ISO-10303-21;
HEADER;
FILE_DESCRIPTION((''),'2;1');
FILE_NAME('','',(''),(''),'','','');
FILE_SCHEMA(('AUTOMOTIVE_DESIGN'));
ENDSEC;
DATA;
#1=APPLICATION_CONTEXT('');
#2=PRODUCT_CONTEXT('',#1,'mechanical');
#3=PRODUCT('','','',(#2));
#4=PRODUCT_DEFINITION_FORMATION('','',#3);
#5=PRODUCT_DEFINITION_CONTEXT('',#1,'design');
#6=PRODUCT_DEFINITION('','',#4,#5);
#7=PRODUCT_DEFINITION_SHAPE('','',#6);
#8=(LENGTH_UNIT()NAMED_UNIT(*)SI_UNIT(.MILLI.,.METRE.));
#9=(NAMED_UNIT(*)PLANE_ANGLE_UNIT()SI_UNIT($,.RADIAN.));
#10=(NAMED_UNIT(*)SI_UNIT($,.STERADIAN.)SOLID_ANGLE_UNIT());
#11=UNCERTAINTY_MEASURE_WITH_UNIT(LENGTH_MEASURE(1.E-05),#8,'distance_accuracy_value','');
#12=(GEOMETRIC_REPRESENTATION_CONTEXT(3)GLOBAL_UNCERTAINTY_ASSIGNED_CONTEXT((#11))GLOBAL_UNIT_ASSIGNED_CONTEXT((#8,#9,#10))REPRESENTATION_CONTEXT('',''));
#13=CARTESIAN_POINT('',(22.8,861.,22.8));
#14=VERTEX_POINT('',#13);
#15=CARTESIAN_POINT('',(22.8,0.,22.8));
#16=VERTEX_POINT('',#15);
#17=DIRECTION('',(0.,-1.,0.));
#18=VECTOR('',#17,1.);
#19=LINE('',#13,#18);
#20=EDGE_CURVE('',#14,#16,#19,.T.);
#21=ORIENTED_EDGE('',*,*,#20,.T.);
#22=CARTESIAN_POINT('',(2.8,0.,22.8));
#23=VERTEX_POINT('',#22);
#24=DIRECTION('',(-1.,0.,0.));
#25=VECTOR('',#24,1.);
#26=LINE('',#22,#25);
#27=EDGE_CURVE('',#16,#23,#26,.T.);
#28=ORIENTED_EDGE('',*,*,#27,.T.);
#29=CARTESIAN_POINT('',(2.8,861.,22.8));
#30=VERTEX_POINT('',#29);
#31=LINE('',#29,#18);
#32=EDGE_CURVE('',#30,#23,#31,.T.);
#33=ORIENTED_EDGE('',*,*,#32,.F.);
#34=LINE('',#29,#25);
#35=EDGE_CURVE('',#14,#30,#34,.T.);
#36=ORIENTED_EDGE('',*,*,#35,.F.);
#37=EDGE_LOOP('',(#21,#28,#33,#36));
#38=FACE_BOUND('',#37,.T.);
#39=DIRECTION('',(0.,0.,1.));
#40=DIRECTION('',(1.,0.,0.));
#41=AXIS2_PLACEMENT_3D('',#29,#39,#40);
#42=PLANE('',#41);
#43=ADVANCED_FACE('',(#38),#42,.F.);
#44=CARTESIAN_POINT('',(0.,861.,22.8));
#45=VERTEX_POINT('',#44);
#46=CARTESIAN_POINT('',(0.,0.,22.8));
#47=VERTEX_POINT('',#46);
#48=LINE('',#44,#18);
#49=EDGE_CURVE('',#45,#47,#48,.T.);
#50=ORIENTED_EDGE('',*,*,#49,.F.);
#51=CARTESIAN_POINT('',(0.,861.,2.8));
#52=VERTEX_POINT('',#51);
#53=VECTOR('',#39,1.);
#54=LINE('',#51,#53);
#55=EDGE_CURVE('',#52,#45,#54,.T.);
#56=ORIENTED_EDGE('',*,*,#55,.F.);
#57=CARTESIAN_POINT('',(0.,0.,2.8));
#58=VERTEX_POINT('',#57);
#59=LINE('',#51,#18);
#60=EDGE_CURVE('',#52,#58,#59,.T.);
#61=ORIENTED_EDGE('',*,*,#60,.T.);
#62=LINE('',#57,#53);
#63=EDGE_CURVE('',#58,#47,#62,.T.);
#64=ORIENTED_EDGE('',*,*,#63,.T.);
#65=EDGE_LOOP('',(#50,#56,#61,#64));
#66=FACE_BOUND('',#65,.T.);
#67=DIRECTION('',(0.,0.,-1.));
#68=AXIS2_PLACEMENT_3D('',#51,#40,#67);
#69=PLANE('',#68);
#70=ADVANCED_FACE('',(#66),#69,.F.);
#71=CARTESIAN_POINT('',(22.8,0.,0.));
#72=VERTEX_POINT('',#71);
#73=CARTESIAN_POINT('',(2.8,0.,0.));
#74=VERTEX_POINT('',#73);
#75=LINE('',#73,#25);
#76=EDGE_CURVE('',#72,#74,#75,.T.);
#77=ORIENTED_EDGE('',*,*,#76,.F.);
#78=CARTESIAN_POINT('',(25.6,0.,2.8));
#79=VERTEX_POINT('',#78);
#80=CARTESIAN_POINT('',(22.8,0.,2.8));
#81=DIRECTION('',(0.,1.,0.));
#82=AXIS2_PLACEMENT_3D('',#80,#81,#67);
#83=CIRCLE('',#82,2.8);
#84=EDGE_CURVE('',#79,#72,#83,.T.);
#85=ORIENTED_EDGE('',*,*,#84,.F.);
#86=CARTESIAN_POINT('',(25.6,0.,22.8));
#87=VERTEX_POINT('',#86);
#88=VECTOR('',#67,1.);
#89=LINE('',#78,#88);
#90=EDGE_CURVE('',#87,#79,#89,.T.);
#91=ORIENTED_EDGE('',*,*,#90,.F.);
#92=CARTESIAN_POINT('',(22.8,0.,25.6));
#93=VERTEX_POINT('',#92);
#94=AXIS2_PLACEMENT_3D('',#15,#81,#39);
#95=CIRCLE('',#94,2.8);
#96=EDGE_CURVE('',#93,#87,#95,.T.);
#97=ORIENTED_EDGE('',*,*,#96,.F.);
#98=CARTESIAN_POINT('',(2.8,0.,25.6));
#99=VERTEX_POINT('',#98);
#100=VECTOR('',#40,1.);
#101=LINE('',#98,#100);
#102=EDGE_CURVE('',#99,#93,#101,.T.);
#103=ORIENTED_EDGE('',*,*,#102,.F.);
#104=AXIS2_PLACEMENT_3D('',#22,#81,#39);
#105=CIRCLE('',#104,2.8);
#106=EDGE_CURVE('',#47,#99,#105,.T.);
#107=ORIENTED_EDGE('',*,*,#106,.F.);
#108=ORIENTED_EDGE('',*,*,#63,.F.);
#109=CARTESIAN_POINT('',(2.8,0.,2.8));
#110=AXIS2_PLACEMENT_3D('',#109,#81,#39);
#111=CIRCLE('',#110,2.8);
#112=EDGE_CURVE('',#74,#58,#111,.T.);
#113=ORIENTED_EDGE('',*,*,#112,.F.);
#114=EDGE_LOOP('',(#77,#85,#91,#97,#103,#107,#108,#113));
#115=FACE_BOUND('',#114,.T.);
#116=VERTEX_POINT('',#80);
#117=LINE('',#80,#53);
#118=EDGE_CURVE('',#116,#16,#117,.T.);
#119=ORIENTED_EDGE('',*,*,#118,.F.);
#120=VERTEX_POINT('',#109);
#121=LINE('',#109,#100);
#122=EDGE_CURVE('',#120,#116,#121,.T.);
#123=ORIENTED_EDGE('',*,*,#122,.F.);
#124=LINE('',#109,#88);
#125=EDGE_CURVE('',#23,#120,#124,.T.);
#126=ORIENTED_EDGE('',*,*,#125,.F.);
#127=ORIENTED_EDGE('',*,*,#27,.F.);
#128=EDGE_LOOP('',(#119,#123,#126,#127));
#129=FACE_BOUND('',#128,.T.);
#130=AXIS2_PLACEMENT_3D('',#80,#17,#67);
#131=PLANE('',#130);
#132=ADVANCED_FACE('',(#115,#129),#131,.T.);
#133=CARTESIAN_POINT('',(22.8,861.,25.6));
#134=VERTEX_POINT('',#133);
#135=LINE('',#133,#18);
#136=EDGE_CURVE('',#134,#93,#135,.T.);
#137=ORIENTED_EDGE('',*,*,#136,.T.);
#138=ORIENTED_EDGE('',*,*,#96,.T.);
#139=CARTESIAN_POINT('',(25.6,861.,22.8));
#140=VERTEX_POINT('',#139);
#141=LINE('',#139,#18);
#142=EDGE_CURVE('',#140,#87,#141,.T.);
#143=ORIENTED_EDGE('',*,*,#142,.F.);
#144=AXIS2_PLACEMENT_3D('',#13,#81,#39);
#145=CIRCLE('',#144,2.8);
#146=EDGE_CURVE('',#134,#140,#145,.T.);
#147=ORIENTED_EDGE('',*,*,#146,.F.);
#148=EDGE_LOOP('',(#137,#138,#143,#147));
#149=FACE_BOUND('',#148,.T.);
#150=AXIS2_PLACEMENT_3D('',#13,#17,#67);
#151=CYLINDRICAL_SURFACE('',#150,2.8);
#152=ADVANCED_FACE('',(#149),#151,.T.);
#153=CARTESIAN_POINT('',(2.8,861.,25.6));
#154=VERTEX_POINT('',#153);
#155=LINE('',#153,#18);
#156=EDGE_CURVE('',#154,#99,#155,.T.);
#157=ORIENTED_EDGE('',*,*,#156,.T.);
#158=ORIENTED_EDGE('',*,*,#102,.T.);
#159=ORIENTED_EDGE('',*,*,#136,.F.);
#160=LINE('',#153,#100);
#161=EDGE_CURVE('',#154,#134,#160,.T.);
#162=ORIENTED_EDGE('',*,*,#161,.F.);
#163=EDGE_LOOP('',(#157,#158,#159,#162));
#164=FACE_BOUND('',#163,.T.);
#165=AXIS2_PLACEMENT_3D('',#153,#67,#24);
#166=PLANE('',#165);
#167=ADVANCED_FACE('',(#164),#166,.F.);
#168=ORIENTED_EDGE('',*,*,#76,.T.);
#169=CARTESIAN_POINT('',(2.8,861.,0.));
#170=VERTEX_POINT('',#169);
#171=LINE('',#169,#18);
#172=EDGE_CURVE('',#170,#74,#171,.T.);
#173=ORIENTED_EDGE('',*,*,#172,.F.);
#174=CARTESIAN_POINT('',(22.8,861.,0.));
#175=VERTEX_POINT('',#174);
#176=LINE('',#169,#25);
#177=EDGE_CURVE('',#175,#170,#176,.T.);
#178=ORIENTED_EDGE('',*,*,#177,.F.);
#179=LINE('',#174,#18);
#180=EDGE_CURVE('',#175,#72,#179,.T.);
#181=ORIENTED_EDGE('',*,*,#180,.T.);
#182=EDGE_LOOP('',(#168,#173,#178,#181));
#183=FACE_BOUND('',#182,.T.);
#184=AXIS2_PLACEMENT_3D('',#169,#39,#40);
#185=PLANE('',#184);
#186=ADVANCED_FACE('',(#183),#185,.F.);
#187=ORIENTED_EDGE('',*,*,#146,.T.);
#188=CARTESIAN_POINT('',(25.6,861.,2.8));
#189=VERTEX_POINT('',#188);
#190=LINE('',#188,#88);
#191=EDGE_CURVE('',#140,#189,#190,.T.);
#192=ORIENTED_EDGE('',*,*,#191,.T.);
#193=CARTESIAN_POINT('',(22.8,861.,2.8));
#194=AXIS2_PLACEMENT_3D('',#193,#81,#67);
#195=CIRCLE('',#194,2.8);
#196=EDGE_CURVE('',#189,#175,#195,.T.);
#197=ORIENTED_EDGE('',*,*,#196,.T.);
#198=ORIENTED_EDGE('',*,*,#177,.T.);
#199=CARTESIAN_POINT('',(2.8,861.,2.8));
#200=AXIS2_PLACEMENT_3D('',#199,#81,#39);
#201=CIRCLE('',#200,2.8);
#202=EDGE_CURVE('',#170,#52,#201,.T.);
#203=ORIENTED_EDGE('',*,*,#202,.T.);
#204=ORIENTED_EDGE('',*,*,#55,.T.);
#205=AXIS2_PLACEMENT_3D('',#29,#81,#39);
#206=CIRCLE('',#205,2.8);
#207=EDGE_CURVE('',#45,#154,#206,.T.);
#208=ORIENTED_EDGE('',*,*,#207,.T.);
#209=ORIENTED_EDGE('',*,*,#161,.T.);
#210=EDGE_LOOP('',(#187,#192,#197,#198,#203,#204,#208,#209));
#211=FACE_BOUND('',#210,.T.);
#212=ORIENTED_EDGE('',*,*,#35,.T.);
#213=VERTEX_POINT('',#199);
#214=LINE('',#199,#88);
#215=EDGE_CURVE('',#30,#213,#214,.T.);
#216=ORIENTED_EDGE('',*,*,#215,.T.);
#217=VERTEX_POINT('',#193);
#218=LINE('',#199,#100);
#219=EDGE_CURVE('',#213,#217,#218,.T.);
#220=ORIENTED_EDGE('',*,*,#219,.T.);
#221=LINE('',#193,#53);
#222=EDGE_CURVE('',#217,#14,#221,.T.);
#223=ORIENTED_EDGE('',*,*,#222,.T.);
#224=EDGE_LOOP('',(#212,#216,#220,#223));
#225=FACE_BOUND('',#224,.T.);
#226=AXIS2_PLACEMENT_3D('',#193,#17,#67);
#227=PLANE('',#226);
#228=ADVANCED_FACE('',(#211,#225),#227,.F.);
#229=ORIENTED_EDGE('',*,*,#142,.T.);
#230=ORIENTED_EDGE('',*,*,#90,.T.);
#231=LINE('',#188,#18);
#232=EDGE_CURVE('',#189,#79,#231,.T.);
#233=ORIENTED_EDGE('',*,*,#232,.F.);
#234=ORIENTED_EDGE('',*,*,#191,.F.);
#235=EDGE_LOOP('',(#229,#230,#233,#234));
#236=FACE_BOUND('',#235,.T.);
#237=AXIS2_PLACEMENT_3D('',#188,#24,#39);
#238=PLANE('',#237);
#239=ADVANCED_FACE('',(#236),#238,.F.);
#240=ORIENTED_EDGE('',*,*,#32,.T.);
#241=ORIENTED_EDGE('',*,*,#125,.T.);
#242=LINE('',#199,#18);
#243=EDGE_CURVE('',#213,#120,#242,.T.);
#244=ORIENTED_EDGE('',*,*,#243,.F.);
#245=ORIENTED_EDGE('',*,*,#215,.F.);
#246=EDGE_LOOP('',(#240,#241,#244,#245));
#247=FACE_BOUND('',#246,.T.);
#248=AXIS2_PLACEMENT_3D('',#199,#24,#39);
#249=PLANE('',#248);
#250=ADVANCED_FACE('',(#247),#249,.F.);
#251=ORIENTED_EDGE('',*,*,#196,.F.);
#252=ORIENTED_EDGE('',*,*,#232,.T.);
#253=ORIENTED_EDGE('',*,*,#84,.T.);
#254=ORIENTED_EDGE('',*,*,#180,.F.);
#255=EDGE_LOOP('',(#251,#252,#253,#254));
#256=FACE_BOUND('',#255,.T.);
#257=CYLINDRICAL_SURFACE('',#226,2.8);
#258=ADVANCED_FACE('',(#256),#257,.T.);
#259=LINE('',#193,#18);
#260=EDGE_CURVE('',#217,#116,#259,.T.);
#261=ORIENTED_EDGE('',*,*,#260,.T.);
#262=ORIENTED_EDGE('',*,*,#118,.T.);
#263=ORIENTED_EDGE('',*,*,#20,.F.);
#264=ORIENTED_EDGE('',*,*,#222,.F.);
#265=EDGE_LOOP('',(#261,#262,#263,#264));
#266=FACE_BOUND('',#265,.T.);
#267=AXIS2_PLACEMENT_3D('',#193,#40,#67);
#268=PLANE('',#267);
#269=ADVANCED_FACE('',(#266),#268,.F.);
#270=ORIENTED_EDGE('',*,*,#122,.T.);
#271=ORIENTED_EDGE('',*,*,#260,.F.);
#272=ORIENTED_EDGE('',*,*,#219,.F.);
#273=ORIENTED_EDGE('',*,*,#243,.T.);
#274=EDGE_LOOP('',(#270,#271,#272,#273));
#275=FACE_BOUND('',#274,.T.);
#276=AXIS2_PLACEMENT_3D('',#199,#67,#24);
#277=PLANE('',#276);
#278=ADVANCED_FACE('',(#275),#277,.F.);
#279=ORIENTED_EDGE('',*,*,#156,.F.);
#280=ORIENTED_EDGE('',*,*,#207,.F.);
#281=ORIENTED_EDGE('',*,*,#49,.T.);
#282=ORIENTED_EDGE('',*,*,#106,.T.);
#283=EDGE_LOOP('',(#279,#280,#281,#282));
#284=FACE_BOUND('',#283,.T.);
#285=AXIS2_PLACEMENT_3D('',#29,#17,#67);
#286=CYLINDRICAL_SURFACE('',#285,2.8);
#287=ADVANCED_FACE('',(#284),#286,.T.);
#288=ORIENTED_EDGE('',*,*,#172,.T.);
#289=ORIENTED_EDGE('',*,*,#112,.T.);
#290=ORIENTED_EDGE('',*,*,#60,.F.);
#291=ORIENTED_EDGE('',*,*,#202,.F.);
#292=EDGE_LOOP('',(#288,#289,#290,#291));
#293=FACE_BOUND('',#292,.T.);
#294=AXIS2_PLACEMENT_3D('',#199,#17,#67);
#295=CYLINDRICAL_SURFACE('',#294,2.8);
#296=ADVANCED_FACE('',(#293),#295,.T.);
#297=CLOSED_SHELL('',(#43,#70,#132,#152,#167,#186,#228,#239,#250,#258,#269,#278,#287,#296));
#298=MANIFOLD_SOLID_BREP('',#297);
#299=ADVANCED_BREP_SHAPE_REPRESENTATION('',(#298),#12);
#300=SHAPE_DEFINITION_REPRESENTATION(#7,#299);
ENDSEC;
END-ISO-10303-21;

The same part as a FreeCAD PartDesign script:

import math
import FreeCAD as App
import Part
import Sketcher
from FreeCAD import Vector

doc = App.newDocument("Part")
body = doc.addObject("PartDesign::Body", "Body")

# Sketch on XZ plane
sketch1 = doc.addObject("Sketcher::SketchObject", "Sketch")
body.addObject(sketch1)
sketch1.AttachmentSupport = (doc.XZ_Plane, [""])
sketch1.MapMode = "FlatFace"
sketch1.addGeometry([
    Part.LineSegment(Vector(22.8, 0, 0), Vector(2.8, 0, 0)),  # 0
    Part.ArcOfCircle(Part.Circle(Vector(2.8, 2.8, 0), Vector(0, 0, 1), 2.8), math.radians(-180), math.radians(-90)),  # 1
    Part.LineSegment(Vector(0, 2.8, 0), Vector(0, 22.8, 0)),  # 2
    Part.ArcOfCircle(Part.Circle(Vector(2.8, 22.8, 0), Vector(0, 0, 1), 2.8), math.radians(90), math.radians(180)),  # 3
    Part.LineSegment(Vector(2.8, 25.6, 0), Vector(22.8, 25.6, 0)),  # 4
    Part.ArcOfCircle(Part.Circle(Vector(22.8, 22.8, 0), Vector(0, 0, 1), 2.8), math.radians(0), math.radians(90)),  # 5
    Part.LineSegment(Vector(25.6, 22.8, 0), Vector(25.6, 2.8, 0)),  # 6
    Part.ArcOfCircle(Part.Circle(Vector(22.8, 2.8, 0), Vector(0, 0, 1), 2.8), math.radians(-90), math.radians(0)),  # 7
], False)
sketch1.addConstraint([
    Sketcher.Constraint("Tangent", 0, 2, 1, 2),
    Sketcher.Constraint("Tangent", 1, 1, 2, 1),
    Sketcher.Constraint("Tangent", 2, 2, 3, 2),
    Sketcher.Constraint("Tangent", 3, 1, 4, 1),
    Sketcher.Constraint("Tangent", 4, 2, 5, 2),
    Sketcher.Constraint("Tangent", 5, 1, 6, 1),
    Sketcher.Constraint("Tangent", 6, 2, 7, 2),
    Sketcher.Constraint("Tangent", 7, 1, 0, 1),
    Sketcher.Constraint("Horizontal", 0),
    Sketcher.Constraint("Vertical", 2),
    Sketcher.Constraint("Horizontal", 4),
    Sketcher.Constraint("Vertical", 6),
    Sketcher.Constraint("Equal", 1, 3),
    Sketcher.Constraint("Equal", 3, 5),
    Sketcher.Constraint("Equal", 5, 7),
    Sketcher.Constraint("PointOnObject", 0, 2, -1),
    Sketcher.Constraint("PointOnObject", 1, 1, -2),
    Sketcher.Constraint("Equal", 4, 2),
    Sketcher.Constraint("Radius", 1, 2.8),
    Sketcher.Constraint("DistanceX", 0, 2, 0, 1, 20.0),
])
pad1 = doc.addObject("PartDesign::Pad", "Pad")
body.addObject(pad1)
pad1.Profile = sketch1
pad1.Length = 861
pad1.Reversed = True

# Sketch on XZ plane
sketch2 = doc.addObject("Sketcher::SketchObject", "Sketch001")
body.addObject(sketch2)
sketch2.AttachmentSupport = (doc.XZ_Plane, [""])
sketch2.MapMode = "FlatFace"
sketch2.addGeometry([
    Part.LineSegment(Vector(23, 3, 0), Vector(23, 23, 0)),
    Part.LineSegment(Vector(23, 23, 0), Vector(3, 23, 0)),
    Part.LineSegment(Vector(3, 23, 0), Vector(3, 3, 0)),
    Part.LineSegment(Vector(3, 3, 0), Vector(23, 3, 0)),
], False)
sketch2.addConstraint([
    Sketcher.Constraint("Coincident", 0, 2, 1, 1),
    Sketcher.Constraint("Coincident", 1, 2, 2, 1),
    Sketcher.Constraint("Coincident", 2, 2, 3, 1),
    Sketcher.Constraint("Coincident", 3, 2, 0, 1),
    Sketcher.Constraint("Vertical", 0),
    Sketcher.Constraint("Horizontal", 1),
    Sketcher.Constraint("Vertical", 2),
    Sketcher.Constraint("Horizontal", 3),
    Sketcher.Constraint("Equal", 3, 0),
    Sketcher.Constraint("DistanceX", 1, 2, 1, 1, 20.0),
    Sketcher.Constraint("DistanceX", -1, 1, 0, 2, 22.8),
    Sketcher.Constraint("DistanceY", -1, 1, 0, 2, 22.8),
])
pocket1 = doc.addObject("PartDesign::Pocket", "Pocket")
body.addObject(pocket1)
pocket1.Profile = sketch2
pocket1.Length = 861

doc.recompute()
